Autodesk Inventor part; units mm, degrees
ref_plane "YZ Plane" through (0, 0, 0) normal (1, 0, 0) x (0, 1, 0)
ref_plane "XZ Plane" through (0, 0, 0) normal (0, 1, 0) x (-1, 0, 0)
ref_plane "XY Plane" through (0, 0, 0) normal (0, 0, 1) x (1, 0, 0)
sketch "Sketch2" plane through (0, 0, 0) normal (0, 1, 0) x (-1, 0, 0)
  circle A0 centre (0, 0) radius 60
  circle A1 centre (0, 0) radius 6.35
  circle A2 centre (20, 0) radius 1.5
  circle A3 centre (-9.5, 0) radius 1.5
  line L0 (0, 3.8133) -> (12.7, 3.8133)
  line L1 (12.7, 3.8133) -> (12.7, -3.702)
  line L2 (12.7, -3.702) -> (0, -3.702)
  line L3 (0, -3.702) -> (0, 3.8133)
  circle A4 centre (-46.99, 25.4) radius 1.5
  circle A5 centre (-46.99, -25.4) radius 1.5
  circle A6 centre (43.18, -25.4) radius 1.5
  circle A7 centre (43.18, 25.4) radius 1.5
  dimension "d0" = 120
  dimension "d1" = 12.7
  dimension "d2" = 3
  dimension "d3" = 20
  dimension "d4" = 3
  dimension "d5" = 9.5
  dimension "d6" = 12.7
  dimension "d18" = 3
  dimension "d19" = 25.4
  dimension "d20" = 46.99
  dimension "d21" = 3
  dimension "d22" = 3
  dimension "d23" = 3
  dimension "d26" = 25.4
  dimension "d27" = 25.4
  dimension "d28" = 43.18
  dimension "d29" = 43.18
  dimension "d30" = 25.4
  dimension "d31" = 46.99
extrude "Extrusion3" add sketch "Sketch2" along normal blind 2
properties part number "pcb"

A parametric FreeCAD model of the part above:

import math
import FreeCAD as App
import Part
import Sketcher
from FreeCAD import Vector
Q = App.Units.Quantity

doc = App.newDocument("Part")
body = doc.addObject("PartDesign::Body", "Body")

# Sketch on XZ plane
sketch1 = body.newObject("Sketcher::SketchObject", "Sketch")
sketch1.AttachmentSupport = (doc.getObject("XZ_Plane"), [""])
sketch1.MapMode = "FlatFace"
sketch1.addGeometry(Part.Circle(Vector(0, 0, 0), Vector(0, 0, 1), 60), False)
sketch1.addGeometry(Part.Circle(Vector(46.99, -25.4, 0), Vector(0, 0, 1), 1.5), False)
sketch1.addGeometry(Part.Circle(Vector(-43.18, -25.4, 0), Vector(0, 0, 1), 1.5), False)
sketch1.addGeometry(Part.Circle(Vector(46.99, 25.4, 0), Vector(0, 0, 1), 1.5), False)
sketch1.addGeometry(Part.Circle(Vector(9.5, 0, 0), Vector(0, 0, 1), 1.5), False)
sketch1.addGeometry(Part.ArcOfCircle(Part.Circle(Vector(0, 0, 0), Vector(0, 0, 1), 6.35), math.radians(-144.338731), math.radians(143.092874)), False)
sketch1.addGeometry(Part.LineSegment(Vector(-5.077523, 3.8133, 0), Vector(-12.7, 3.8133, 0)), False)
sketch1.addGeometry(Part.LineSegment(Vector(-12.7, 3.8133, 0), Vector(-12.7, -3.702, 0)), False)
sketch1.addGeometry(Part.LineSegment(Vector(-12.7, -3.702, 0), Vector(-5.159234, -3.702, 0)), False)
sketch1.addGeometry(Part.Circle(Vector(-20, 0, 0), Vector(0, 0, 1), 1.5), False)
sketch1.addGeometry(Part.Circle(Vector(-43.18, 25.4, 0), Vector(0, 0, 1), 1.5), False)
sketch1.addConstraint(Sketcher.Constraint("Coincident", 5, 2, 6, 1))
sketch1.addConstraint(Sketcher.Constraint("Coincident", 6, 2, 7, 1))
sketch1.addConstraint(Sketcher.Constraint("Coincident", 7, 2, 8, 1))
sketch1.addConstraint(Sketcher.Constraint("Coincident", 8, 2, 5, 1))
sketch1.addConstraint(Sketcher.Constraint("Horizontal", 6))
sketch1.addConstraint(Sketcher.Constraint("Vertical", 7))
sketch1.addConstraint(Sketcher.Constraint("Horizontal", 8))
sketch1.addConstraint(Sketcher.Constraint("Coincident", 0, 3, -1, 1))
sketch1.addConstraint(Sketcher.Constraint("Coincident", 5, 3, -1, 1))
sketch1.addConstraint(Sketcher.Constraint("Equal", 1, 2))
sketch1.addConstraint(Sketcher.Constraint("Equal", 2, 3))
sketch1.addConstraint(Sketcher.Constraint("Equal", 3, 4))
sketch1.addConstraint(Sketcher.Constraint("Equal", 4, 9))
sketch1.addConstraint(Sketcher.Constraint("Equal", 9, 10))
sketch1.addConstraint(Sketcher.Constraint("Symmetric", 1, 3, 3, 3, -1))
sketch1.addConstraint(Sketcher.Constraint("Symmetric", 2, 3, 10, 3, -1))
sketch1.addConstraint(Sketcher.Constraint("PointOnObject", 4, 3, -1))
sketch1.addConstraint(Sketcher.Constraint("PointOnObject", 9, 3, -1))
sketch1.addConstraint(Sketcher.Constraint("Horizontal", 1, 3, 2, 3))
sketch1.addConstraint(Sketcher.Constraint("Radius", 5, Q("0.25 in")))
sketch1.addConstraint(Sketcher.Constraint("DistanceY", 1, 3, -1, 1, Q("1 in")))
sketch1.addConstraint(Sketcher.Constraint("Diameter", 0, Q("4.7244 in")))
sketch1.addConstraint(Sketcher.Constraint("Diameter", 1, Q("0.1181 in")))
sketch1.addConstraint(Sketcher.Constraint("DistanceX", 2, 3, -1, 1, Q("1.7 in")))
sketch1.addConstraint(Sketcher.Constraint("DistanceX", 6, 2, -1, 1, Q("0.5 in")))
sketch1.addConstraint(Sketcher.Constraint("DistanceX", -1, 1, 1, 3, Q("1.85 in")))
sketch1.addConstraint(Sketcher.Constraint("DistanceX", 9, 3, -1, 1, Q("0.7874 in")))
sketch1.addConstraint(Sketcher.Constraint("DistanceX", 8, 1, 8, 2, Q("0.2968819 in")))
sketch1.addConstraint(Sketcher.Constraint("DistanceX", -1, 1, 4, 3, Q("9.5 mm")))
sketch1.addConstraint(Sketcher.Constraint("DistanceX", 6, 2, 6, 1, Q("0.3001 in")))
pad1 = body.newObject("PartDesign::Pad", "Pad")
pad1.Profile = sketch1
pad1.Length = 2
pad1.Reversed = True

doc.recompute()
